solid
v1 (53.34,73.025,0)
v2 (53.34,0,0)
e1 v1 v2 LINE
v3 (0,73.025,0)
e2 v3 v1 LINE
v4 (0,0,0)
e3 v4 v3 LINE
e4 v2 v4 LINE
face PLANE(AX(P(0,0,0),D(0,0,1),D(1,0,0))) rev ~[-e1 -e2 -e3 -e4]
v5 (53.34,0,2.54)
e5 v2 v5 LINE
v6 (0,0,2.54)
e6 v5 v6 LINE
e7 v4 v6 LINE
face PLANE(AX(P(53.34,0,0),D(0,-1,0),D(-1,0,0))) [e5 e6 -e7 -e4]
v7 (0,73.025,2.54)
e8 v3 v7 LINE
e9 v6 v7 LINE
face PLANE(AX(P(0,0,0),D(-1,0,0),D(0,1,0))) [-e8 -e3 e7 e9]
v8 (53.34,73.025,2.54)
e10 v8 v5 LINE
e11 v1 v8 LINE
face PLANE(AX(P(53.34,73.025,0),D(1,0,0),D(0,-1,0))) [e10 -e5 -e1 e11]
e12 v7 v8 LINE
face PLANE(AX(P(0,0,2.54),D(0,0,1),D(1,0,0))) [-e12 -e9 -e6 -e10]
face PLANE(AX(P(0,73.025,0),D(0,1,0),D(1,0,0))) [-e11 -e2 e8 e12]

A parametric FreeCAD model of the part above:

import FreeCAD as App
import Part
import Sketcher
from FreeCAD import Vector
Q = App.Units.Quantity


def add_polygon(sketch, points):
    """Adds a closed chain of lines whose ends are joined by coincident constraints."""
    first, n = sketch.GeometryCount, len(points)
    for a, b in zip(points, points[1:] + points[:1]):
        sketch.addGeometry(Part.LineSegment(App.Vector(*a, 0), App.Vector(*b, 0)), False)
    for i in range(n):
        sketch.addConstraint(Sketcher.Constraint("Coincident", first + i, 2, first + (i + 1) % n, 1))

doc = App.newDocument("Part")
params = doc.addObject("Spreadsheet::Sheet", "Params")
for row, (alias, value) in enumerate([
    ("sketch1_width", "2.1 in"),
    ("sketch1_height", "2.875 in"),
    ("pad1_length", "0.1 in"),
], start=1):
    params.set(f"A{row}", alias)
    params.set(f"B{row}", "=" + value)
    params.setAlias(f"B{row}", alias)

body = doc.addObject("PartDesign::Body", "Body")

sketch1 = body.newObject("Sketcher::SketchObject", "Sketch")
sketch1.AttachmentSupport = (doc.getObject("XY_Plane"), [""])
sketch1.MapMode = "FlatFace"
add_polygon(sketch1, [(0, 73), (0, 0), (53, 0), (53, 73)])
sketch1.addConstraint(Sketcher.Constraint("Vertical", 0))
sketch1.addConstraint(Sketcher.Constraint("Horizontal", 1))
sketch1.addConstraint(Sketcher.Constraint("Vertical", 2))
sketch1.addConstraint(Sketcher.Constraint("Horizontal", 3))
sketch1.addConstraint(Sketcher.Constraint("Coincident", 0, 2, -1, 1))
sketch1.addConstraint(Sketcher.Constraint("DistanceX", 1, 1, 1, 2, Q("2.1 in")))
sketch1.addConstraint(Sketcher.Constraint("DistanceY", 0, 2, 0, 1, Q("2.875 in")))
sketch1.setExpression("Constraints[9]", "Params.sketch1_width")
sketch1.setExpression("Constraints[10]", "Params.sketch1_height")
pad1 = body.newObject("PartDesign::Pad", "Pad")
pad1.Profile = sketch1
pad1.setExpression("Length", "Params.pad1_length")

doc.recompute()
